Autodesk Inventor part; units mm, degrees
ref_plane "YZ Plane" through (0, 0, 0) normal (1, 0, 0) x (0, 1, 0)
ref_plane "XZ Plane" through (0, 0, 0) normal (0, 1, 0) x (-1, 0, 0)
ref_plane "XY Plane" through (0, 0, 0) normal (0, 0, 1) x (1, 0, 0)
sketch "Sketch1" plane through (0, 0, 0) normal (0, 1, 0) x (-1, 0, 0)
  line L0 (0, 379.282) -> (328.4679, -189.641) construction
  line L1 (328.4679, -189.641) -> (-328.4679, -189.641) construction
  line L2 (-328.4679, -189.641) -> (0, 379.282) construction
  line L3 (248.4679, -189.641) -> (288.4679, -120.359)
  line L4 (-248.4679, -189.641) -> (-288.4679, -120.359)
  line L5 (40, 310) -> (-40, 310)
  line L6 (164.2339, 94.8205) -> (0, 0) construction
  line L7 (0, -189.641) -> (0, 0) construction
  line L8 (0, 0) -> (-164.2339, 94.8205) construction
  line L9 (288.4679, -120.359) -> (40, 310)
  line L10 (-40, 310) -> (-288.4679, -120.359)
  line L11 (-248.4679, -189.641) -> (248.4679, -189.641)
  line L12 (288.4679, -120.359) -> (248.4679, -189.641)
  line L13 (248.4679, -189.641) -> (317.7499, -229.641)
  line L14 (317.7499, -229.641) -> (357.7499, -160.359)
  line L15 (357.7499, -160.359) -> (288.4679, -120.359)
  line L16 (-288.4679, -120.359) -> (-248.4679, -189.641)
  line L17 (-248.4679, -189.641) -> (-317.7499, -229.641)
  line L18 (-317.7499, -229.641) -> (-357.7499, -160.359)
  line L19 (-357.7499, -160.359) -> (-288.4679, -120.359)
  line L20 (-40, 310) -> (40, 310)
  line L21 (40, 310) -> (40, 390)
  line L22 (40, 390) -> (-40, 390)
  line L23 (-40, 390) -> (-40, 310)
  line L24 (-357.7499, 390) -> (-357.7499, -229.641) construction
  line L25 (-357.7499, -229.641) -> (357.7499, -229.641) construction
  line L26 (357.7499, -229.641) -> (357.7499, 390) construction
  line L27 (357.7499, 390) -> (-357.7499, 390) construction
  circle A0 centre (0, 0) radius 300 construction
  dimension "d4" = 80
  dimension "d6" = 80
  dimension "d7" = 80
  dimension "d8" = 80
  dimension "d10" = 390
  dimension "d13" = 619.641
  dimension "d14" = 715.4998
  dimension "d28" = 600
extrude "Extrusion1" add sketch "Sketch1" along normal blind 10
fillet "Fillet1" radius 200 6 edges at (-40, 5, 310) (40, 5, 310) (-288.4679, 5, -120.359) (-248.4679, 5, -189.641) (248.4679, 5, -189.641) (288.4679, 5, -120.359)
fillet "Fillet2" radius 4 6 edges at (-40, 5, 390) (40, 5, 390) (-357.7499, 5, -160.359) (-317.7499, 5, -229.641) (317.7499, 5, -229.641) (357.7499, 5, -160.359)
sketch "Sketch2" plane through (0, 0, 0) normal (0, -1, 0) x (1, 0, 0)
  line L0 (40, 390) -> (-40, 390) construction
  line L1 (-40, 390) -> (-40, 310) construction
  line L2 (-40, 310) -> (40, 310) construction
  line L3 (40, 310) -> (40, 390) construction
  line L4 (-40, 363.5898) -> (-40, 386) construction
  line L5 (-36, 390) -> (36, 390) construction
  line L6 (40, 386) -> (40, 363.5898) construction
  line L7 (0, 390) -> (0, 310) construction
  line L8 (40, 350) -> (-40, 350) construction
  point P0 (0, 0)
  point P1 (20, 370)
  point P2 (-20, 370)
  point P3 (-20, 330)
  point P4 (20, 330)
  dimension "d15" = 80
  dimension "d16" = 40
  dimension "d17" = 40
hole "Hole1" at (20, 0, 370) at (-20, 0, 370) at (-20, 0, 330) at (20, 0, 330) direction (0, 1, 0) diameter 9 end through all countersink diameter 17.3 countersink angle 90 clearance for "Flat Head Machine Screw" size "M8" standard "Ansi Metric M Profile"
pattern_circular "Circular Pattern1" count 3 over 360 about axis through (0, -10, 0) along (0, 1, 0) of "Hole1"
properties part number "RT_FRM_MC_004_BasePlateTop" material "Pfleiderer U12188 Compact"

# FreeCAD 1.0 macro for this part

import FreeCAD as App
import Part
import Sketcher
Q = App.Units.Quantity


def edges_at(feature, points):
    """Names of the edges that pass closest to the given points."""
    edges = feature.Shape.Edges
    near = lambda p: min(range(len(edges)), key=lambda i: edges[i].distToShape(Part.Vertex(*p))[0])
    return sorted({f"Edge{near(p) + 1}" for p in points})

doc = App.newDocument("Part")
params = doc.addObject("Spreadsheet::Sheet", "Params")
for row, (alias, value) in enumerate([
    ("sketch1_width", "80 mm"),
    ("sketch1_length", "80 mm"),
    ("pad1_length", "10 mm"),
    ("fillet_radius", "200 mm"),
    ("fillet2_radius", "4 mm"),
    ("sketch2_diameter", "9 mm"),
    ("hole_diameter", "9 mm"),
    ("hole_csink_diameter", "17.3 mm"),
], start=1):
    params.set(f"A{row}", alias)
    params.set(f"B{row}", "=" + value)
    params.setAlias(f"B{row}", alias)

body = doc.addObject("PartDesign::Body", "Body")

sketch1 = doc.addObject("Sketcher::SketchObject", "Sketch")
body.addObject(sketch1)
sketch1.AttachmentSupport = (doc.XZ_Plane, [""])
sketch1.MapMode = "FlatFace"
sketch1.addGeometry([
    Part.LineSegment(App.Vector(248, -190, 0), App.Vector(-248, -190, 0)),
    Part.LineSegment(App.Vector(-248, -190, 0), App.Vector(-318, -230, 0)),
    Part.LineSegment(App.Vector(-318, -230, 0), App.Vector(-358, -160, 0)),
    Part.LineSegment(App.Vector(-358, -160, 0), App.Vector(-288, -120, 0)),
    Part.LineSegment(App.Vector(-288, -120, 0), App.Vector(-40, 310, 0)),
    Part.LineSegment(App.Vector(-40, 310, 0), App.Vector(-40, 390, 0)),
    Part.LineSegment(App.Vector(-40, 390, 0), App.Vector(40, 390, 0)),
    Part.LineSegment(App.Vector(40, 390, 0), App.Vector(40, 310, 0)),
    Part.LineSegment(App.Vector(40, 310, 0), App.Vector(288, -120, 0)),
    Part.LineSegment(App.Vector(288, -120, 0), App.Vector(358, -160, 0)),
    Part.LineSegment(App.Vector(358, -160, 0), App.Vector(318, -230, 0)),
    Part.LineSegment(App.Vector(318, -230, 0), App.Vector(248, -190, 0)),
], False)
sketch1.addConstraint([
    Sketcher.Constraint("Coincident", 0, 2, 1, 1),
    Sketcher.Constraint("Coincident", 1, 2, 2, 1),
    Sketcher.Constraint("Coincident", 2, 2, 3, 1),
    Sketcher.Constraint("Coincident", 3, 2, 4, 1),
    Sketcher.Constraint("Coincident", 4, 2, 5, 1),
    Sketcher.Constraint("Coincident", 5, 2, 6, 1),
    Sketcher.Constraint("Coincident", 6, 2, 7, 1),
    Sketcher.Constraint("Coincident", 7, 2, 8, 1),
    Sketcher.Constraint("Coincident", 8, 2, 9, 1),
    Sketcher.Constraint("Coincident", 9, 2, 10, 1),
    Sketcher.Constraint("Coincident", 10, 2, 11, 1),
    Sketcher.Constraint("Coincident", 11, 2, 0, 1),
    Sketcher.Constraint("Horizontal", 0),
    Sketcher.Constraint("Vertical", 5),
    Sketcher.Constraint("Horizontal", 6),
    Sketcher.Constraint("Vertical", 7),
    Sketcher.Constraint("Symmetric", 4, 2, 7, 2, -2),
    Sketcher.Constraint("Symmetric", 3, 2, 8, 2, -2),
    Sketcher.Constraint("Symmetric", 2, 2, 9, 2, -2),
    Sketcher.Constraint("Symmetric", 1, 2, 10, 2, -2),
    Sketcher.Constraint("Perpendicular", 1, 2),
    Sketcher.Constraint("Perpendicular", 2, 3),
    Sketcher.Constraint("Perpendicular", 3, 8),
    Sketcher.Constraint("Perpendicular", 10, 11),
    Sketcher.Constraint("Equal", 6, 5),
    Sketcher.Constraint("Equal", 1, 2),
    Sketcher.Constraint("Equal", 2, 3),
    Sketcher.Constraint("DistanceX", 6, 1, 6, 2, 80.0),
    Sketcher.Constraint("Distance", 1, 80.0),
    Sketcher.Constraint("DistanceY", -1, 1, 5, 2, 390.0),
    Sketcher.Constraint("Angle", 1, Q("-150 deg")),
    Sketcher.Constraint("DistanceY", 1, 2, 5, 2, 619.641),
])
sketch1.setExpression("Constraints[27]", "Params.sketch1_width")
sketch1.setExpression("Constraints[28]", "Params.sketch1_length")
pad1 = doc.addObject("PartDesign::Pad", "Pad")
body.addObject(pad1)
pad1.Profile = sketch1
pad1.setExpression("Length", "Params.pad1_length")
pad1.Reversed = True
doc.recompute()

fillet = doc.addObject("PartDesign::Fillet", "Fillet")
body.addObject(fillet)
fillet.Base = (pad1, edges_at(pad1, [
    (-40, 5, 310),
    (40, 5, 310),
    (-288.468, 5, -120.359),
    (-248.468, 5, -189.641),
    (248.468, 5, -189.641),
    (288.468, 5, -120.359),
]))
fillet.setExpression("Radius", "Params.fillet_radius")
doc.recompute()

fillet2 = doc.addObject("PartDesign::Fillet", "Fillet001")
body.addObject(fillet2)
fillet2.Base = (fillet, edges_at(fillet, [
    (-40, 5, 390),
    (40, 5, 390),
    (-357.75, 5, -160.359),
    (-317.75, 5, -229.641),
    (317.75, 5, -229.641),
    (357.75, 5, -160.359),
]))
fillet2.setExpression("Radius", "Params.fillet2_radius")

sketch2 = doc.addObject("Sketcher::SketchObject", "Sketch001")
body.addObject(sketch2)
sketch2.AttachmentSupport = (doc.XZ_Plane, [""])
sketch2.MapMode = "FlatFace"
sketch2.addGeometry([
    Part.Circle(App.Vector(20, 370, 0), App.Vector(0, 0, 1), 4.5),
    Part.Circle(App.Vector(-20, 370, 0), App.Vector(0, 0, 1), 4.5),
    Part.Circle(App.Vector(-20, 330, 0), App.Vector(0, 0, 1), 4.5),
    Part.Circle(App.Vector(20, 330, 0), App.Vector(0, 0, 1), 4.5),
], False)
sketch2.addConstraint([
    Sketcher.Constraint("Equal", 0, 1),
    Sketcher.Constraint("Equal", 1, 2),
    Sketcher.Constraint("Equal", 2, 3),
    Sketcher.Constraint("Symmetric", 0, 3, 1, 3, -2),
    Sketcher.Constraint("Symmetric", 2, 3, 3, 3, -2),
    Sketcher.Constraint("Vertical", 1, 3, 2, 3),
    Sketcher.Constraint("Diameter", 0, 9.0),
    Sketcher.Constraint("DistanceX", -1, 1, 0, 3, 20.0),
    Sketcher.Constraint("DistanceY", -1, 1, 0, 3, 370.0),
    Sketcher.Constraint("DistanceY", -1, 1, 2, 3, 330.0),
])
sketch2.setExpression("Constraints[6]", "Params.sketch2_diameter")
doc.recompute()
hole = doc.addObject("PartDesign::Hole", "Hole")
body.addObject(hole)
hole.Profile = sketch2
hole.ThreadType = "None"
hole.setExpression("Diameter", "Params.hole_diameter")
hole.DepthType = "ThroughAll"
hole.HoleCutType = "Countersink"
hole.setExpression("HoleCutDiameter", "Params.hole_csink_diameter")
hole.HoleCutCountersinkAngle = 90
doc.recompute()

polarpattern = doc.addObject("PartDesign::PolarPattern", "PolarPattern")
body.addObject(polarpattern)
polarpattern.Originals = [hole]
polarpattern.Axis = (doc.Y_Axis, [""])
polarpattern.Angle = 360
polarpattern.Occurrences = 3
body.Tip = polarpattern

doc.recompute()
